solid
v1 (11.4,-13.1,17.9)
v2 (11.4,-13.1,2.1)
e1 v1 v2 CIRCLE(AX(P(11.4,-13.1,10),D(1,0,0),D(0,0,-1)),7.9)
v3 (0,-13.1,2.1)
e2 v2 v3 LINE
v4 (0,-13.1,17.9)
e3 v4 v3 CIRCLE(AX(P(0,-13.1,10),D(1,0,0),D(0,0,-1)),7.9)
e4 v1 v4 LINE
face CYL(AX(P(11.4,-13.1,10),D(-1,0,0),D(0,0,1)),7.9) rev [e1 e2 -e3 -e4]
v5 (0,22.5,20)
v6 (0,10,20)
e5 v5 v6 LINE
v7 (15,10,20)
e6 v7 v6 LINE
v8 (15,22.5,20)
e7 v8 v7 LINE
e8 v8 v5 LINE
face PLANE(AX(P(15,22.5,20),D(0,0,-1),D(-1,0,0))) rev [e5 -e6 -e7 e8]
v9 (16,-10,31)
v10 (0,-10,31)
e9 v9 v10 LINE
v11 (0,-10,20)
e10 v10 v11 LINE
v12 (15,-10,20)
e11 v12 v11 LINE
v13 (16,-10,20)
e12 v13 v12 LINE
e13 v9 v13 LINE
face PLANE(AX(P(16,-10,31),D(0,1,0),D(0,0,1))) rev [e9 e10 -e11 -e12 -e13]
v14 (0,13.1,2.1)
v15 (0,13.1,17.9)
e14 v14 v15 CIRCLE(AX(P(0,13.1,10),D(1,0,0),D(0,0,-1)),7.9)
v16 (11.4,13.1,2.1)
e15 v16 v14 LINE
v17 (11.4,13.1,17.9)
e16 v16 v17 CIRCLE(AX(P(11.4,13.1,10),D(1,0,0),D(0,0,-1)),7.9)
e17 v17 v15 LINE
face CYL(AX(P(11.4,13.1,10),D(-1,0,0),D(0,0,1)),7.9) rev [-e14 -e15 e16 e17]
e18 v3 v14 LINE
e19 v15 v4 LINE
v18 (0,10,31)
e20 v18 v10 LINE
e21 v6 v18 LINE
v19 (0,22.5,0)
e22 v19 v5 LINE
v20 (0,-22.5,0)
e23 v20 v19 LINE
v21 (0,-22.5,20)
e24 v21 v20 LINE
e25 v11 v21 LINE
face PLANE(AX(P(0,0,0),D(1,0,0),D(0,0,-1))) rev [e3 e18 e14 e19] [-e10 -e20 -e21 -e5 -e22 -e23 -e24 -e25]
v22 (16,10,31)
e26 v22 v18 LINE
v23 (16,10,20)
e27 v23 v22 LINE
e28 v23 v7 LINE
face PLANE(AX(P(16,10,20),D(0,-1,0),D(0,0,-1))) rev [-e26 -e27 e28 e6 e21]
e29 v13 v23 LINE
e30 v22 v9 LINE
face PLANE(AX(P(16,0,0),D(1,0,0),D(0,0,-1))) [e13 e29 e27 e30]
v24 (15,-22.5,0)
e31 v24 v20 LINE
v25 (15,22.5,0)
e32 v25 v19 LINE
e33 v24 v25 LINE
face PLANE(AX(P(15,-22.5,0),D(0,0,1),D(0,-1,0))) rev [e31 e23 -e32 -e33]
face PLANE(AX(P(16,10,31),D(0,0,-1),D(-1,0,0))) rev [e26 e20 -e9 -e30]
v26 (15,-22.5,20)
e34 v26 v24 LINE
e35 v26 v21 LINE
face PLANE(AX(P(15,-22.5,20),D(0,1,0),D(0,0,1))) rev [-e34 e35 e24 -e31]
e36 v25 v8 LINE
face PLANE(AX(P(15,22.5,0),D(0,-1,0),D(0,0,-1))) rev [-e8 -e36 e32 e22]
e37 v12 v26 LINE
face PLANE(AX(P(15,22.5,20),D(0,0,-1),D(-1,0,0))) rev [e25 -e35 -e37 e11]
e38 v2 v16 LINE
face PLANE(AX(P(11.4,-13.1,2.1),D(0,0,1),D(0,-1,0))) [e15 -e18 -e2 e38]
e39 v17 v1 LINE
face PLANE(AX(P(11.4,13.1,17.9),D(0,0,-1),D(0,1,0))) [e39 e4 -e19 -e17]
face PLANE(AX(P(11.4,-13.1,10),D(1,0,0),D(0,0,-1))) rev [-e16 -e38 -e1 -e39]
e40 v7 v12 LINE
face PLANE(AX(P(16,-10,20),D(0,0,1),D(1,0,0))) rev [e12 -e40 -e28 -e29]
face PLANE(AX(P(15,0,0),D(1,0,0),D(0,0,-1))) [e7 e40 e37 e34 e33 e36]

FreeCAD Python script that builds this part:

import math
import FreeCAD as App
import Part
import Sketcher
Q = App.Units.Quantity

doc = App.newDocument("Part")
params = doc.addObject("Spreadsheet::Sheet", "Params")
for row, (alias, value) in enumerate([
    ("sketch1_width", "45 mm"),
    ("sketch1_height", "20 mm"),
    ("pad1_length", "15 mm"),
    ("sketch2_width", "20 mm"),
    ("sketch2_height", "11 mm"),
    ("pad2_length", "16 mm"),
    ("sketch3_radius", "7.9 mm"),
    ("sketch3_width", "26.2 mm"),
    ("pocket1_length", "11.4 mm"),
], start=1):
    params.set(f"A{row}", alias)
    params.set(f"B{row}", "=" + value)
    params.setAlias(f"B{row}", alias)

body = doc.addObject("PartDesign::Body", "Body")

sketch1 = doc.addObject("Sketcher::SketchObject", "Sketch")
body.addObject(sketch1)
sketch1.AttachmentSupport = (doc.YZ_Plane, [""])
sketch1.MapMode = "FlatFace"
sketch1.addGeometry([
    Part.LineSegment(App.Vector(22.5, 20, 0), App.Vector(-22.5, 20, 0)),
    Part.LineSegment(App.Vector(-22.5, 20, 0), App.Vector(-22.5, 0, 0)),
    Part.LineSegment(App.Vector(-22.5, 0, 0), App.Vector(22.5, 0, 0)),
    Part.LineSegment(App.Vector(22.5, 0, 0), App.Vector(22.5, 20, 0)),
], False)
sketch1.addConstraint([
    Sketcher.Constraint("Coincident", 0, 2, 1, 1),
    Sketcher.Constraint("Coincident", 1, 2, 2, 1),
    Sketcher.Constraint("Coincident", 2, 2, 3, 1),
    Sketcher.Constraint("Coincident", 3, 2, 0, 1),
    Sketcher.Constraint("Horizontal", 0),
    Sketcher.Constraint("Vertical", 1),
    Sketcher.Constraint("Horizontal", 2),
    Sketcher.Constraint("Vertical", 3),
    Sketcher.Constraint("Symmetric", 1, 2, 2, 2, -1, 1),
    Sketcher.Constraint("DistanceX", 0, 2, 0, 1, Q("45 mm")),
    Sketcher.Constraint("DistanceY", 1, 2, 1, 1, Q("20 mm")),
])
sketch1.setExpression("Constraints[9]", "Params.sketch1_width")
sketch1.setExpression("Constraints[10]", "Params.sketch1_height")
pad1 = doc.addObject("PartDesign::Pad", "Pad")
body.addObject(pad1)
pad1.Profile = sketch1
pad1.setExpression("Length", "Params.pad1_length")

sketch2 = doc.addObject("Sketcher::SketchObject", "Sketch001")
body.addObject(sketch2)
sketch2.AttachmentSupport = (doc.YZ_Plane, [""])
sketch2.MapMode = "FlatFace"
sketch2.addGeometry([
    Part.LineSegment(App.Vector(10, 31, 0), App.Vector(-10, 31, 0)),
    Part.LineSegment(App.Vector(-10, 31, 0), App.Vector(-10, 20, 0)),
    Part.LineSegment(App.Vector(-10, 20, 0), App.Vector(10, 20, 0)),
    Part.LineSegment(App.Vector(10, 20, 0), App.Vector(10, 31, 0)),
], False)
sketch2.addConstraint([
    Sketcher.Constraint("Coincident", 0, 2, 1, 1),
    Sketcher.Constraint("Coincident", 1, 2, 2, 1),
    Sketcher.Constraint("Coincident", 2, 2, 3, 1),
    Sketcher.Constraint("Coincident", 3, 2, 0, 1),
    Sketcher.Constraint("Horizontal", 0),
    Sketcher.Constraint("Vertical", 1),
    Sketcher.Constraint("Horizontal", 2),
    Sketcher.Constraint("Vertical", 3),
    Sketcher.Constraint("DistanceX", 0, 2, 0, 1, Q("20 mm")),
    Sketcher.Constraint("DistanceY", 1, 2, 1, 1, Q("11 mm")),
    Sketcher.Constraint("DistanceX", 0, 2, -1, 1, Q("10 mm")),
    Sketcher.Constraint("DistanceY", -1, 1, 0, 2, Q("31 mm")),
])
sketch2.setExpression("Constraints[8]", "Params.sketch2_width")
sketch2.setExpression("Constraints[9]", "Params.sketch2_height")
pad2 = doc.addObject("PartDesign::Pad", "Pad001")
body.addObject(pad2)
pad2.Profile = sketch2
pad2.setExpression("Length", "Params.pad2_length")

sketch3 = doc.addObject("Sketcher::SketchObject", "Sketch002")
body.addObject(sketch3)
sketch3.AttachmentSupport = (doc.YZ_Plane, [""])
sketch3.MapMode = "FlatFace"
sketch3.addGeometry([
    Part.LineSegment(App.Vector(13.1, 17.9, 0), App.Vector(-13.1, 17.9, 0)),
    Part.ArcOfCircle(Part.Circle(App.Vector(-13.1, 10, 0), App.Vector(0, 0, 1), 7.9), math.radians(90), math.radians(270)),
    Part.LineSegment(App.Vector(-13.1, 2.1, 0), App.Vector(13.1, 2.1, 0)),
    Part.ArcOfCircle(Part.Circle(App.Vector(13.1, 10, 0), App.Vector(0, 0, 1), 7.9), math.radians(-90), math.radians(90)),
], False)
sketch3.addConstraint([
    Sketcher.Constraint("Tangent", 0, 2, 1, 1),
    Sketcher.Constraint("Tangent", 1, 2, 2, 1),
    Sketcher.Constraint("Tangent", 2, 2, 3, 1),
    Sketcher.Constraint("Tangent", 3, 2, 0, 1),
    Sketcher.Constraint("Horizontal", 0),
    Sketcher.Constraint("Horizontal", 2),
    Sketcher.Constraint("Radius", 1, Q("7.9 mm")),
    Sketcher.Constraint("DistanceX", 0, 2, 0, 1, Q("26.2 mm")),
    Sketcher.Constraint("DistanceY", -1, 1, 1, 3, Q("10 mm")),
    Sketcher.Constraint("DistanceX", 1, 3, -1, 1, Q("13.1 mm")),
])
sketch3.setExpression("Constraints[6]", "Params.sketch3_radius")
sketch3.setExpression("Constraints[7]", "Params.sketch3_width")
pocket1 = doc.addObject("PartDesign::Pocket", "Pocket")
body.addObject(pocket1)
pocket1.Profile = sketch3
pocket1.setExpression("Length", "Params.pocket1_length")
pocket1.Reversed = True

doc.recompute()
